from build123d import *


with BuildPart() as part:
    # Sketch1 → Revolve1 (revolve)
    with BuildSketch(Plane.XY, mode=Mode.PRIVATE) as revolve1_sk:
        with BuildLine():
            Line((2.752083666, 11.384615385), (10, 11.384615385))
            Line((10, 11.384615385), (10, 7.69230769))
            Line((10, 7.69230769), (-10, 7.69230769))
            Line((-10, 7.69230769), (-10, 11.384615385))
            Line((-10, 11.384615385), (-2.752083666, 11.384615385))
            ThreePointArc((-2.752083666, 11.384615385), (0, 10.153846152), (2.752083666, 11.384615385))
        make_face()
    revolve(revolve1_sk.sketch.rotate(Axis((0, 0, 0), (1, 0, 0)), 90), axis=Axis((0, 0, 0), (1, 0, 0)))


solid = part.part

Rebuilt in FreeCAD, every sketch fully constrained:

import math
import FreeCAD as App
import Part
import Sketcher

V = App.Vector

doc = App.newDocument("Part")
params = doc.addObject("Spreadsheet::Sheet", "Params")
for row, (alias, value) in enumerate([
    ("sketch1_width", "20 mm"),
    ("revolution_angle", "360 deg"),
], start=1):
    params.set(f"A{row}", alias)
    params.set(f"B{row}", "=" + value)
    params.setAlias(f"B{row}", alias)

body = doc.addObject("PartDesign::Body", "Body")

# Sketch on XY plane
sketch1 = doc.addObject("Sketcher::SketchObject", "Sketch")
body.addObject(sketch1)
sketch1.AttachmentSupport = (doc.XY_Plane, [""])
sketch1.MapMode = "FlatFace"
sketch1.addGeometry([
    Part.LineSegment(V(10, 11.4, 0), V(2.8, 11.4, 0)),  # 0
    Part.ArcOfCircle(Part.Circle(V(0, 13.8, 0), V(0, 0, 1), 3.7), math.radians(-138), math.radians(-42)),  # 1
    Part.LineSegment(V(-2.8, 11.4, 0), V(-10, 11.4, 0)),  # 2
    Part.LineSegment(V(-10, 11.4, 0), V(-10, 7.7, 0)),  # 3
    Part.LineSegment(V(-10, 7.7, 0), V(10, 7.7, 0)),  # 4
    Part.LineSegment(V(10, 7.7, 0), V(10, 11.4, 0)),  # 5
], False)
sketch1.addConstraint([
    Sketcher.Constraint("Coincident", 0, 2, 1, 2),
    Sketcher.Constraint("Coincident", 1, 1, 2, 1),
    Sketcher.Constraint("Coincident", 2, 2, 3, 1),
    Sketcher.Constraint("Coincident", 3, 2, 4, 1),
    Sketcher.Constraint("Coincident", 4, 2, 5, 1),
    Sketcher.Constraint("Coincident", 5, 2, 0, 1),
    Sketcher.Constraint("Horizontal", 0),
    Sketcher.Constraint("Horizontal", 2),
    Sketcher.Constraint("Vertical", 3),
    Sketcher.Constraint("Horizontal", 4),
    Sketcher.Constraint("Vertical", 5),
    Sketcher.Constraint("Symmetric", 0, 2, 1, 1, -2),
    Sketcher.Constraint("Equal", 0, 2),
    Sketcher.Constraint("DistanceX", 4, 1, 4, 2, 20.0),
    Sketcher.Constraint("Radius", 1, 3.692308),
    Sketcher.Constraint("DistanceX", 0, 2, 0, 1, 7.247916),
    Sketcher.Constraint("DistanceY", 3, 2, 3, 1, 3.692308),
    Sketcher.Constraint("DistanceY", -1, 1, 1, 3, 13.846154),
])
sketch1.setExpression("Constraints[13]", "Params.sketch1_width")
revolution = doc.addObject("PartDesign::Revolution", "Revolution")
body.addObject(revolution)
revolution.Profile = sketch1
revolution.ReferenceAxis = (sketch1, ["H_Axis"])
revolution.setExpression("Angle", "Params.revolution_angle")

doc.recompute()
